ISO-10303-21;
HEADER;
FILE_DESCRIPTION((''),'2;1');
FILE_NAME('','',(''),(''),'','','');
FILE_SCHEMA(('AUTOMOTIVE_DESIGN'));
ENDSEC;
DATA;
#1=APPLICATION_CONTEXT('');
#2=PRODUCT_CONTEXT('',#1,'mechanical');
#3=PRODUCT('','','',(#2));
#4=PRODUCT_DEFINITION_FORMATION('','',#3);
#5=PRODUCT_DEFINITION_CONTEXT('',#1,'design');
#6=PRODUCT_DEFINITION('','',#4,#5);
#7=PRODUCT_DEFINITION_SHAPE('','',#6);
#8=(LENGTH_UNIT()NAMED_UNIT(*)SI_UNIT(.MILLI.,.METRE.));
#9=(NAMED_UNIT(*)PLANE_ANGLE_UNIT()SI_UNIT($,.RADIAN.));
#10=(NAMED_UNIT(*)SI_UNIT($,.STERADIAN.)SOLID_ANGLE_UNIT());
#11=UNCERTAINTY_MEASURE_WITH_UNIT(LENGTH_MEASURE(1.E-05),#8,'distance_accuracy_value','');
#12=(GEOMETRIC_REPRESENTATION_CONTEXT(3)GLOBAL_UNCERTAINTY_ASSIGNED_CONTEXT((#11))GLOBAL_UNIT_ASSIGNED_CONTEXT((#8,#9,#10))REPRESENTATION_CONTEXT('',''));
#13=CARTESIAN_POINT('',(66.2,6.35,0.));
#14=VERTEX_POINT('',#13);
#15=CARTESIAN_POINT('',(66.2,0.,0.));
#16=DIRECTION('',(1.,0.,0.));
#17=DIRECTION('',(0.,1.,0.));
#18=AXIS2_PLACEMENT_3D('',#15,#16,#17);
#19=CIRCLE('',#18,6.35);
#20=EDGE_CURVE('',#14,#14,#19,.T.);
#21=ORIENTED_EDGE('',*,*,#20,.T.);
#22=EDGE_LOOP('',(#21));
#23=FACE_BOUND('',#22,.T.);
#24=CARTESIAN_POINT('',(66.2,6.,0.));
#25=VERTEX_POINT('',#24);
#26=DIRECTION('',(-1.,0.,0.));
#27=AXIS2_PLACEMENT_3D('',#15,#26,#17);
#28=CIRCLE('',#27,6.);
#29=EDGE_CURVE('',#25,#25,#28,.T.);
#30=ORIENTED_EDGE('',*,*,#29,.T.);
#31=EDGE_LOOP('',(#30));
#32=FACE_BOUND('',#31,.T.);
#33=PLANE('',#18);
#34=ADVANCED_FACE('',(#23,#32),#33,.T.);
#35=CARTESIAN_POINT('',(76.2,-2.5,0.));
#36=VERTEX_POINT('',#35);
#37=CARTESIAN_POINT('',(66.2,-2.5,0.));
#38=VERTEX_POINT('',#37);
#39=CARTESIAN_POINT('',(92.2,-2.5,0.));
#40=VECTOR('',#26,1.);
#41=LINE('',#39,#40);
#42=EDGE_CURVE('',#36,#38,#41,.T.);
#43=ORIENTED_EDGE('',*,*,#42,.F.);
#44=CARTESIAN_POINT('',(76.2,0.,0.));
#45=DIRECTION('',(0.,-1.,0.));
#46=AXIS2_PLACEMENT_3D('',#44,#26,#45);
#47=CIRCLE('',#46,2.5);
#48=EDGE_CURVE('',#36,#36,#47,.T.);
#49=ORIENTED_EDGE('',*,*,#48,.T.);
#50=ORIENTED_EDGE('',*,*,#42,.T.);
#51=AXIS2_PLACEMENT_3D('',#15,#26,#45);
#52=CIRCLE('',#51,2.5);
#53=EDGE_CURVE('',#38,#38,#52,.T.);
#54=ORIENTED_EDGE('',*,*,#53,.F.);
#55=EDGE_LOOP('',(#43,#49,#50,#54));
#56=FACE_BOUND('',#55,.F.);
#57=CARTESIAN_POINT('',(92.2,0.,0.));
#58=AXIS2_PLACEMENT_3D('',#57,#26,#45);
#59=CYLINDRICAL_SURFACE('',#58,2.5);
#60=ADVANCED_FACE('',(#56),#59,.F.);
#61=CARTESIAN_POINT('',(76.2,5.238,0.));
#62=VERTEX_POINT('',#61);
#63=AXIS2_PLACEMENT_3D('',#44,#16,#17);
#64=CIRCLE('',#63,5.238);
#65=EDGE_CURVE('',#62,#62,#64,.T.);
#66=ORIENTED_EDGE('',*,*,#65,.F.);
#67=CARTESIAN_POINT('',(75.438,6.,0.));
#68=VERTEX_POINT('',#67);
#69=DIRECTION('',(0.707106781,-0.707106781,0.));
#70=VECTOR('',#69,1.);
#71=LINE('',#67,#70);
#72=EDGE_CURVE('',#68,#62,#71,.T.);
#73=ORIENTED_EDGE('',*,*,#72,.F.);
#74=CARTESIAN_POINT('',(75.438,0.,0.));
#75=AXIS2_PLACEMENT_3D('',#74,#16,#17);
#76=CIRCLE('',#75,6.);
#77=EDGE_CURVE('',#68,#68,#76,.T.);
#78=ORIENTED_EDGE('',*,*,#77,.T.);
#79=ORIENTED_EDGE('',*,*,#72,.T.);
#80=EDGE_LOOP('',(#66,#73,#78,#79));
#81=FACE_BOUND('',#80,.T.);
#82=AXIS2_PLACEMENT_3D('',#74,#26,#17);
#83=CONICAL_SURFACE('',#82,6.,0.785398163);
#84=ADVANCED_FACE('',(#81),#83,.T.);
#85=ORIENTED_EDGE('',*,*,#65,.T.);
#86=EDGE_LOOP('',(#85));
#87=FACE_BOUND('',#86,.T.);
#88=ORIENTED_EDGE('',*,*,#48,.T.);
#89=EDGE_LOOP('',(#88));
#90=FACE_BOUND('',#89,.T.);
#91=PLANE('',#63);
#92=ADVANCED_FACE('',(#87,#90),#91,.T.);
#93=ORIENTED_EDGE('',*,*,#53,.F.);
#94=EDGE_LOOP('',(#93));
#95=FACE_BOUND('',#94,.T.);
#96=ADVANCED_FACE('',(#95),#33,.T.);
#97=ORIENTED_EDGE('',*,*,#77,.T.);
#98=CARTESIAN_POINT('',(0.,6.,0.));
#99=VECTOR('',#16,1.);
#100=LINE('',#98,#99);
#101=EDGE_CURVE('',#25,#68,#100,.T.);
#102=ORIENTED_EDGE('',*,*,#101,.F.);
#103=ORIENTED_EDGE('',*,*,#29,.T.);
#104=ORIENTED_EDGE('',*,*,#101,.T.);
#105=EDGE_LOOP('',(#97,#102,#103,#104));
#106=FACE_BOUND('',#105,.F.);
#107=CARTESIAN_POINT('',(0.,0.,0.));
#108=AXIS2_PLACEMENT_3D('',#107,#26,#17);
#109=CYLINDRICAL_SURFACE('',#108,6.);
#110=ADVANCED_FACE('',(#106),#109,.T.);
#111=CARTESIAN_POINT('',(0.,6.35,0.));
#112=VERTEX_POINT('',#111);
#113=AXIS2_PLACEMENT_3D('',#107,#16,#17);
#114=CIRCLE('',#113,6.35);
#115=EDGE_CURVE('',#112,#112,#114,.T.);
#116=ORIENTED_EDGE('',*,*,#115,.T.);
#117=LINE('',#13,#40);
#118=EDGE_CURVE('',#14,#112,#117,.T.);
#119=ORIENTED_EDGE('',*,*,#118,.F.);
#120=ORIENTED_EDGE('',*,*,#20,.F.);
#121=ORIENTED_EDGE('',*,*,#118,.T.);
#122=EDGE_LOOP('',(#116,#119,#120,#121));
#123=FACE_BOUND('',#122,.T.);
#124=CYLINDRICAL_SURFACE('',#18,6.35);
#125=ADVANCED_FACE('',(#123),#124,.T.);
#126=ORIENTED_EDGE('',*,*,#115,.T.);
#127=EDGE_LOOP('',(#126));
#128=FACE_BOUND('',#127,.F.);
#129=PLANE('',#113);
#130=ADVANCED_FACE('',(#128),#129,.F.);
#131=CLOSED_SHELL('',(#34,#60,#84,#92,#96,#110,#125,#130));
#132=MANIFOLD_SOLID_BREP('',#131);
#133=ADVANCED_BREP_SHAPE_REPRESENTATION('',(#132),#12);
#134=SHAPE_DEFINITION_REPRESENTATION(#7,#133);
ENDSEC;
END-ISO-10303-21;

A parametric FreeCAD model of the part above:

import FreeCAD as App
import Part
import Sketcher
from FreeCAD import Vector


def edges_at(feature, points):
    """Names of the edges that pass closest to the given points."""
    edges = feature.Shape.Edges
    near = lambda p: min(range(len(edges)), key=lambda i: edges[i].distToShape(Part.Vertex(*p))[0])
    return sorted({f"Edge{near(p) + 1}" for p in points})

doc = App.newDocument("Part")
body = doc.addObject("PartDesign::Body", "Body")

# Sketch on YZ plane
sketch1 = body.newObject("Sketcher::SketchObject", "Sketch")
sketch1.AttachmentSupport = (doc.getObject("YZ_Plane"), [""])
sketch1.MapMode = "FlatFace"
sketch1.addGeometry(Part.Circle(Vector(0, 0, 0), Vector(0, 0, 1), 6), False)
sketch1.addConstraint([
    Sketcher.Constraint("Coincident", 0, 3, -1, 1),
    Sketcher.Constraint("Diameter", 0, 12.0),
])
pad1 = body.newObject("PartDesign::Pad", "Pad")
pad1.Profile = sketch1
pad1.Length = 76.2
doc.recompute()

chamfer = body.newObject("PartDesign::Chamfer", "Chamfer")
chamfer.Base = (pad1, edges_at(pad1, [(76.2, -6, 0)]))
chamfer.Size = 0.762

# Sketch on YZ plane
sketch2 = body.newObject("Sketcher::SketchObject", "Sketch001")
sketch2.AttachmentSupport = (doc.getObject("YZ_Plane"), [""])
sketch2.MapMode = "FlatFace"
sketch2.AttachmentOffset = App.Placement(Vector(0, 0, 76.2), App.Rotation())
sketch2.addGeometry(Part.Circle(Vector(0, 0, 0), Vector(0, 0, 1), 2.5), False)
sketch2.addConstraint([
    Sketcher.Constraint("Coincident", 0, 3, -1, 1),
    Sketcher.Constraint("Diameter", 0, 5.0),
])
doc.recompute()
hole = body.newObject("PartDesign::Hole", "Hole")
hole.Profile = sketch2
hole.ThreadType = "None"
hole.Diameter = 5
hole.DepthType = "Dimension"
hole.Depth = 16
hole.DrillPoint = "Angled"
hole.DrillPointAngle = 118

# Sketch on YZ plane
sketch3 = body.newObject("Sketcher::SketchObject", "Sketch002")
sketch3.AttachmentSupport = (doc.getObject("YZ_Plane"), [""])
sketch3.MapMode = "FlatFace"
sketch3.AttachmentOffset = App.Placement(Vector(0, 0, 66.2), App.Rotation())
sketch3.addGeometry(Part.Circle(Vector(0, 0, 0), Vector(0, 0, 1), 6.35), False)
sketch3.addConstraint([
    Sketcher.Constraint("Coincident", 0, 3, -1, 1),
    Sketcher.Constraint("Diameter", 0, 12.7),
])
pad2 = body.newObject("PartDesign::Pad", "Pad001")
pad2.Profile = sketch3
pad2.Type = "UpToLast"
pad2.Reversed = True

doc.recompute()
